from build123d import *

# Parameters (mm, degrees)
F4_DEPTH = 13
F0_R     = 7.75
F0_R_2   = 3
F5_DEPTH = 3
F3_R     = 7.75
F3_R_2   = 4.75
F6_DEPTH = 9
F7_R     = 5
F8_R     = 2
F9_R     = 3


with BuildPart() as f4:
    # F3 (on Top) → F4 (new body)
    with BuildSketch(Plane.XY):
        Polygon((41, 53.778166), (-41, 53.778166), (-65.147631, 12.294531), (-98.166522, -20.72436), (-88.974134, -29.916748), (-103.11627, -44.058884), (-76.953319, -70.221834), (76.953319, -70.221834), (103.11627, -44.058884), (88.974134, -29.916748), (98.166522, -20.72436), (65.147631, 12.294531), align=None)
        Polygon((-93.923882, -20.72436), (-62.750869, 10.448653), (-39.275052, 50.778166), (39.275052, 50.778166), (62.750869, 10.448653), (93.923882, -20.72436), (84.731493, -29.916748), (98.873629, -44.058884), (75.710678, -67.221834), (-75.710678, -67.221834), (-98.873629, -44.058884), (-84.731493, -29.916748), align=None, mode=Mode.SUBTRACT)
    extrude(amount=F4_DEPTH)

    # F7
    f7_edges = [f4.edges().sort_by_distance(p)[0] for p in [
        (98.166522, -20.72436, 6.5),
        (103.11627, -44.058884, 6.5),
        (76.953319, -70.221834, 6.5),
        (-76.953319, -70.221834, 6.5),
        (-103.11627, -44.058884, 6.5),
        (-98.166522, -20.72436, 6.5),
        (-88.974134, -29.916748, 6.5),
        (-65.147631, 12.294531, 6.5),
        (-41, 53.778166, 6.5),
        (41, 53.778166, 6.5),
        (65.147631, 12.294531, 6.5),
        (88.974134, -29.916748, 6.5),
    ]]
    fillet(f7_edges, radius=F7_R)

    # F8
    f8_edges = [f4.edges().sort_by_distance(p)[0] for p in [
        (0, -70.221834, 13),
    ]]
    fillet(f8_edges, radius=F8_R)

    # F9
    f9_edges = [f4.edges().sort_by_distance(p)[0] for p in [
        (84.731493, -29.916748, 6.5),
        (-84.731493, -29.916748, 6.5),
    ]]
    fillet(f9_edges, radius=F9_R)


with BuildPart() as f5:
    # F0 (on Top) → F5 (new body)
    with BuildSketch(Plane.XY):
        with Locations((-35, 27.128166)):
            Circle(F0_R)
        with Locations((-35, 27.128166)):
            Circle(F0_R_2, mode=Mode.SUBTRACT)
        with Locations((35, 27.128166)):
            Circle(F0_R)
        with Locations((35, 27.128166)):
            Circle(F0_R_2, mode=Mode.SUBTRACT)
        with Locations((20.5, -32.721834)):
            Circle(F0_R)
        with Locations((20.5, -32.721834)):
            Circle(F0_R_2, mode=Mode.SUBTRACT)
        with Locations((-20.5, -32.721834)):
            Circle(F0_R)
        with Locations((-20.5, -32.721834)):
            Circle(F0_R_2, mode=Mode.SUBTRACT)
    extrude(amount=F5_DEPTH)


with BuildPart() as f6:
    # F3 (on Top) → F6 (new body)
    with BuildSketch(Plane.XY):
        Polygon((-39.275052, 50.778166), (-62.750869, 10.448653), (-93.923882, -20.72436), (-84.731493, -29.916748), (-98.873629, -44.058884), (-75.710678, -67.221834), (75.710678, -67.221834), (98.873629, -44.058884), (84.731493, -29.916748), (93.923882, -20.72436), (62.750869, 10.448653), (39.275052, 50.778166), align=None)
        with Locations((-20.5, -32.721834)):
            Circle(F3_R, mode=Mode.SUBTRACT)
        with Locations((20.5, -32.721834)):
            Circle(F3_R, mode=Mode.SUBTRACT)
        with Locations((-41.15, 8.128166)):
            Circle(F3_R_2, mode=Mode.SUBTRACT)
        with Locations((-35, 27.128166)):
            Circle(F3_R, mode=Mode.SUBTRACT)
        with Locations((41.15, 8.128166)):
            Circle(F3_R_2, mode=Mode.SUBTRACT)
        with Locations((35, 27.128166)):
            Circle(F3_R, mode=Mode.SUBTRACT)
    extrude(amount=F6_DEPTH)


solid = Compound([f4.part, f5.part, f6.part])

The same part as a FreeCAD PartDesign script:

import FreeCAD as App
import Part
import Sketcher
Q = App.Units.Quantity


def edges_at(feature, points):
    """Names of the edges that pass closest to the given points."""
    edges = feature.Shape.Edges
    near = lambda p: min(range(len(edges)), key=lambda i: edges[i].distToShape(Part.Vertex(*p))[0])
    return sorted({f"Edge{near(p) + 1}" for p in points})


def add_polygon(sketch, points):
    """Adds a closed chain of lines whose ends are joined by coincident constraints."""
    first, n = sketch.GeometryCount, len(points)
    for a, b in zip(points, points[1:] + points[:1]):
        sketch.addGeometry(Part.LineSegment(App.Vector(*a, 0), App.Vector(*b, 0)), False)
    for i in range(n):
        sketch.addConstraint(Sketcher.Constraint("Coincident", first + i, 2, first + (i + 1) % n, 1))

doc = App.newDocument("Part")
body = doc.addObject("PartDesign::Body", "Body")

sketch1 = body.newObject("Sketcher::SketchObject", "Sketch")
sketch1.AttachmentSupport = (doc.getObject("XY_Plane"), [""])
sketch1.MapMode = "FlatFace"
add_polygon(sketch1, [(41, 54), (-41, 54), (-65, 12), (-98, -21), (-89, -30), (-103, -44), (-77, -70), (77, -70), (103, -44), (89, -30), (98, -21), (65, 12)])
add_polygon(sketch1, [(-85, -30), (-94, -21), (-63, 10), (-39, 51), (39, 51), (63, 10), (94, -21), (85, -30), (99, -44), (76, -67), (-76, -67), (-99, -44)])
sketch1.addConstraint([
    Sketcher.Constraint("Horizontal", 0),
    Sketcher.Constraint("Horizontal", 6),
    Sketcher.Constraint("Horizontal", 15),
    Sketcher.Constraint("Horizontal", 21),
    Sketcher.Constraint("Symmetric", 4, 2, 7, 2, -2),
    Sketcher.Constraint("Symmetric", 3, 2, 8, 2, -2),
    Sketcher.Constraint("Symmetric", 2, 2, 9, 2, -2),
    Sketcher.Constraint("Symmetric", 1, 2, 10, 2, -2),
    Sketcher.Constraint("Symmetric", 13, 2, 16, 2, -2),
    Sketcher.Constraint("Symmetric", 12, 2, 17, 2, -2),
    Sketcher.Constraint("Symmetric", 19, 2, 22, 2, -2),
    Sketcher.Constraint("Symmetric", 18, 2, 23, 2, -2),
    Sketcher.Constraint("Perpendicular", 2, 3),
    Sketcher.Constraint("Perpendicular", 3, 4),
    Sketcher.Constraint("Perpendicular", 4, 5),
    Sketcher.Constraint("Perpendicular", 5, 7),
    Sketcher.Constraint("Perpendicular", 7, 8),
    Sketcher.Constraint("Parallel", 10, 12),
    Sketcher.Constraint("Perpendicular", 12, 13),
    Sketcher.Constraint("Parallel", 1, 14),
    Sketcher.Constraint("Parallel", 11, 16),
    Sketcher.Constraint("Perpendicular", 18, 19),
    Sketcher.Constraint("Perpendicular", 19, 20),
    Sketcher.Constraint("Perpendicular", 20, 22),
    Sketcher.Constraint("Horizontal", 9, 2, 12, 2),
    Sketcher.Constraint("Horizontal", 8, 2, 18, 2),
    Sketcher.Constraint("Horizontal", 7, 2, 19, 2),
    Sketcher.Constraint("Equal", 1, 11),
    Sketcher.Constraint("DistanceX", 0, 2, 0, 1, Q("82 mm")),
    Sketcher.Constraint("Distance", 1, Q("48.000001 mm")),
    Sketcher.Constraint("Distance", 3, Q("13 mm")),
    Sketcher.Constraint("Distance", 4, Q("20.000001 mm")),
    Sketcher.Constraint("Distance", 5, Q("36.999999 mm")),
    Sketcher.Constraint("DistanceY", 5, 2, 0, 2, Q("124 mm")),
    Sketcher.Constraint("DistanceY", 14, 2, 0, 2, Q("3 mm")),
    Sketcher.Constraint("DistanceY", 6, 2, 20, 2, Q("3 mm")),
    Sketcher.Constraint("DistanceX", 1, 2, 7, 2, Q("168.263901 mm")),
    Sketcher.Constraint("DistanceY", 3, 2, 13, 2, Q("40.365401 mm")),
    Sketcher.Constraint("DistanceX", 15, 1, 15, 2, Q("78.550104 mm")),
    Sketcher.Constraint("DistanceY", -1, 1, 1, 2, Q("12.294531 mm")),
])
pad1 = body.newObject("PartDesign::Pad", "Pad")
pad1.Profile = sketch1
pad1.Length = 13
doc.recompute()

fillet = body.newObject("PartDesign::Fillet", "Fillet")
fillet.Base = (pad1, edges_at(pad1, [
    (98.167, -20.724, 6.5),
    (103.116, -44.059, 6.5),
    (76.953, -70.222, 6.5),
    (-76.953, -70.222, 6.5),
    (-103.116, -44.059, 6.5),
    (-98.167, -20.724, 6.5),
    (-88.974, -29.917, 6.5),
    (-65.148, 12.295, 6.5),
    (-41, 53.778, 6.5),
    (41, 53.778, 6.5),
    (65.148, 12.295, 6.5),
    (88.974, -29.917, 6.5),
]))
fillet.Radius = 5
doc.recompute()

fillet2 = body.newObject("PartDesign::Fillet", "Fillet001")
fillet2.Base = (fillet, edges_at(fillet, [(0, -70.222, 13)]))
fillet2.Radius = 2
doc.recompute()

fillet3 = body.newObject("PartDesign::Fillet", "Fillet002")
fillet3.Base = (fillet2, edges_at(fillet2, [(84.731, -29.917, 6.5), (-84.731, -29.917, 6.5)]))
fillet3.Radius = 3
body2 = doc.addObject("PartDesign::Body", "Body001")
body2.AllowCompound = True

sketch2 = body2.newObject("Sketcher::SketchObject", "Sketch001")
sketch2.AttachmentSupport = (doc.getObject("XY_Plane001"), [""])
sketch2.MapMode = "FlatFace"
sketch2.addGeometry([
    Part.Circle(App.Vector(-35, 27.1, 0), App.Vector(0, 0, 1), 7.8),
    Part.Circle(App.Vector(-35, 27.1, 0), App.Vector(0, 0, 1), 3),
    Part.Circle(App.Vector(35, 27.1, 0), App.Vector(0, 0, 1), 7.8),
    Part.Circle(App.Vector(35, 27.1, 0), App.Vector(0, 0, 1), 3),
    Part.Circle(App.Vector(20.5, -32.7, 0), App.Vector(0, 0, 1), 7.8),
    Part.Circle(App.Vector(20.5, -32.7, 0), App.Vector(0, 0, 1), 3),
    Part.Circle(App.Vector(-20.5, -32.7, 0), App.Vector(0, 0, 1), 7.8),
    Part.Circle(App.Vector(-20.5, -32.7, 0), App.Vector(0, 0, 1), 3),
], False)
sketch2.addConstraint([
    Sketcher.Constraint("Coincident", 1, 3, 0, 3),
    Sketcher.Constraint("Coincident", 3, 3, 2, 3),
    Sketcher.Constraint("Coincident", 5, 3, 4, 3),
    Sketcher.Constraint("Coincident", 7, 3, 6, 3),
    Sketcher.Constraint("Equal", 0, 2),
    Sketcher.Constraint("Equal", 1, 3),
    Sketcher.Constraint("Equal", 2, 4),
    Sketcher.Constraint("Equal", 3, 5),
    Sketcher.Constraint("Equal", 4, 6),
    Sketcher.Constraint("Equal", 5, 7),
    Sketcher.Constraint("Symmetric", 0, 3, 2, 3, -2),
    Sketcher.Constraint("Symmetric", 4, 3, 6, 3, -2),
    Sketcher.Constraint("Diameter", 1, Q("6 mm")),
    Sketcher.Constraint("Diameter", 0, Q("15.5 mm")),
    Sketcher.Constraint("DistanceX", 0, 3, -1, 1, Q("35 mm")),
    Sketcher.Constraint("DistanceX", 6, 3, 4, 3, Q("41 mm")),
    Sketcher.Constraint("DistanceY", 4, 3, 2, 3, Q("59.85 mm")),
    Sketcher.Constraint("DistanceY", -1, 1, 0, 3, Q("27.128166 mm")),
])
pad2 = body2.newObject("PartDesign::Pad", "Pad001")
pad2.Profile = sketch2
pad2.Length = 3
body3 = doc.addObject("PartDesign::Body", "Body002")

sketch3 = body3.newObject("Sketcher::SketchObject", "Sketch002")
sketch3.AttachmentSupport = (doc.getObject("XY_Plane002"), [""])
sketch3.MapMode = "FlatFace"
add_polygon(sketch3, [(-39.3, 50.8), (-62.8, 10.4), (-93.9, -20.7), (-84.7, -29.9), (-98.9, -44.1), (-75.7, -67.2), (75.7, -67.2), (98.9, -44.1), (84.7, -29.9), (93.9, -20.7), (62.8, 10.4), (39.3, 50.8)])
sketch3.addGeometry(Part.Circle(App.Vector(-20.5, -32.7, 0), App.Vector(0, 0, 1), 7.8), False)
sketch3.addGeometry(Part.Circle(App.Vector(20.5, -32.7, 0), App.Vector(0, 0, 1), 7.8), False)
sketch3.addGeometry(Part.Circle(App.Vector(-41.1, 8.1, 0), App.Vector(0, 0, 1), 4.8), False)
sketch3.addGeometry(Part.Circle(App.Vector(-35, 27.1, 0), App.Vector(0, 0, 1), 7.8), False)
sketch3.addGeometry(Part.Circle(App.Vector(41.1, 8.1, 0), App.Vector(0, 0, 1), 4.8), False)
sketch3.addGeometry(Part.Circle(App.Vector(35, 27.1, 0), App.Vector(0, 0, 1), 7.8), False)
sketch3.addConstraint([
    Sketcher.Constraint("Horizontal", 5),
    Sketcher.Constraint("Horizontal", 11),
    Sketcher.Constraint("Equal", 12, 13),
    Sketcher.Constraint("Equal", 13, 15),
    Sketcher.Constraint("Equal", 14, 16),
    Sketcher.Constraint("Equal", 15, 17),
    Sketcher.Constraint("Symmetric", 12, 3, 13, 3, -2),
    Sketcher.Constraint("Symmetric", 14, 3, 16, 3, -2),
    Sketcher.Constraint("Symmetric", 15, 3, 17, 3, -2),
    Sketcher.Constraint("Symmetric", 3, 2, 6, 2, -2),
    Sketcher.Constraint("Symmetric", 2, 2, 7, 2, -2),
    Sketcher.Constraint("Symmetric", 1, 2, 8, 2, -2),
    Sketcher.Constraint("Symmetric", 0, 2, 9, 2, -2),
    Sketcher.Constraint("Perpendicular", 1, 2),
    Sketcher.Constraint("Perpendicular", 2, 3),
    Sketcher.Constraint("Perpendicular", 3, 4),
    Sketcher.Constraint("Perpendicular", 4, 6),
    Sketcher.Constraint("Perpendicular", 6, 7),
    Sketcher.Constraint("Equal", 0, 10),
    Sketcher.Constraint("Diameter", 12, Q("15.5 mm")),
    Sketcher.Constraint("Diameter", 14, Q("9.5 mm")),
    Sketcher.Constraint("Distance", 2, Q("13 mm")),
    Sketcher.Constraint("Distance", 3, Q("20.000001 mm")),
    Sketcher.Constraint("DistanceX", 15, 3, -1, 1, Q("35 mm")),
    Sketcher.Constraint("DistanceX", 12, 3, 13, 3, Q("41 mm")),
    Sketcher.Constraint("DistanceY", 14, 3, 15, 3, Q("19 mm")),
    Sketcher.Constraint("DistanceX", 14, 3, 16, 3, Q("82.3 mm")),
    Sketcher.Constraint("DistanceY", 4, 2, 12, 3, Q("34.5 mm")),
    Sketcher.Constraint("DistanceY", 13, 3, 10, 2, Q("83.5 mm")),
    Sketcher.Constraint("DistanceY", 12, 3, 14, 3, Q("40.85 mm")),
    Sketcher.Constraint("DistanceY", 2, 2, 0, 2, Q("40.365401 mm")),
    Sketcher.Constraint("Distance", 4, Q("32.757359 mm")),
    Sketcher.Constraint("DistanceX", 5, 1, 5, 2, Q("151.421356 mm")),
    Sketcher.Constraint("DistanceX", 11, 2, 11, 1, Q("78.550104 mm")),
    Sketcher.Constraint("DistanceY", 1, 2, -1, 1, Q("20.72436 mm")),
])
pad3 = body3.newObject("PartDesign::Pad", "Pad002")
pad3.Profile = sketch3
pad3.Length = 9

doc.recompute()
